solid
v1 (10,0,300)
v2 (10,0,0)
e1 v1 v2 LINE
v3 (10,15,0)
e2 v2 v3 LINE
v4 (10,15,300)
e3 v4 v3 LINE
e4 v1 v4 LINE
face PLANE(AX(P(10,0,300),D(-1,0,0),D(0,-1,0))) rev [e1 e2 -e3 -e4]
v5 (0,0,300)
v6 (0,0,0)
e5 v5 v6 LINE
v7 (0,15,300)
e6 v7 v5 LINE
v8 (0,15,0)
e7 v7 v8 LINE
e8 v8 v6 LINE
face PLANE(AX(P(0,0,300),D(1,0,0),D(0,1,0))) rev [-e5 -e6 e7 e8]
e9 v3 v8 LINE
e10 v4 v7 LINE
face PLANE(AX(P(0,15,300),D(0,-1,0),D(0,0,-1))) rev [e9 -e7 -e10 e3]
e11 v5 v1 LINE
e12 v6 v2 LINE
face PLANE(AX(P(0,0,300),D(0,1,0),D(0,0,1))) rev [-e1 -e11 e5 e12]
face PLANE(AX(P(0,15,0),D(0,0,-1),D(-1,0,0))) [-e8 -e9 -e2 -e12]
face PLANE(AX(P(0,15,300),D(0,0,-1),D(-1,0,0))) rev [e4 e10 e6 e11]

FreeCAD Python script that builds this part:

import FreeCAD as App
import Part
import Sketcher
from FreeCAD import Vector
Q = App.Units.Quantity


def add_polygon(sketch, points):
    """Adds a closed chain of lines whose ends are joined by coincident constraints."""
    first, n = sketch.GeometryCount, len(points)
    for a, b in zip(points, points[1:] + points[:1]):
        sketch.addGeometry(Part.LineSegment(App.Vector(*a, 0), App.Vector(*b, 0)), False)
    for i in range(n):
        sketch.addConstraint(Sketcher.Constraint("Coincident", first + i, 2, first + (i + 1) % n, 1))

doc = App.newDocument("Part")
body = doc.addObject("PartDesign::Body", "Body")

# Sketch on XY plane
sketch1 = body.newObject("Sketcher::SketchObject", "Sketch")
sketch1.AttachmentSupport = (doc.getObject("XY_Plane"), [""])
sketch1.MapMode = "FlatFace"
add_polygon(sketch1, [(0, 15), (0, 0), (10, 0), (10, 15)])  # lines 0-3
sketch1.addConstraint([
    Sketcher.Constraint("Vertical", 0),
    Sketcher.Constraint("Horizontal", 1),
    Sketcher.Constraint("Vertical", 2),
    Sketcher.Constraint("Horizontal", 3),
    Sketcher.Constraint("Coincident", 0, 2, -1, 1),
    Sketcher.Constraint("DistanceX", 1, 1, 1, 2, Q("10 mm")),
    Sketcher.Constraint("DistanceY", 0, 2, 0, 1, Q("15 mm")),
])
pad1 = body.newObject("PartDesign::Pad", "Pad")
pad1.Profile = sketch1
pad1.Length = 300

doc.recompute()
